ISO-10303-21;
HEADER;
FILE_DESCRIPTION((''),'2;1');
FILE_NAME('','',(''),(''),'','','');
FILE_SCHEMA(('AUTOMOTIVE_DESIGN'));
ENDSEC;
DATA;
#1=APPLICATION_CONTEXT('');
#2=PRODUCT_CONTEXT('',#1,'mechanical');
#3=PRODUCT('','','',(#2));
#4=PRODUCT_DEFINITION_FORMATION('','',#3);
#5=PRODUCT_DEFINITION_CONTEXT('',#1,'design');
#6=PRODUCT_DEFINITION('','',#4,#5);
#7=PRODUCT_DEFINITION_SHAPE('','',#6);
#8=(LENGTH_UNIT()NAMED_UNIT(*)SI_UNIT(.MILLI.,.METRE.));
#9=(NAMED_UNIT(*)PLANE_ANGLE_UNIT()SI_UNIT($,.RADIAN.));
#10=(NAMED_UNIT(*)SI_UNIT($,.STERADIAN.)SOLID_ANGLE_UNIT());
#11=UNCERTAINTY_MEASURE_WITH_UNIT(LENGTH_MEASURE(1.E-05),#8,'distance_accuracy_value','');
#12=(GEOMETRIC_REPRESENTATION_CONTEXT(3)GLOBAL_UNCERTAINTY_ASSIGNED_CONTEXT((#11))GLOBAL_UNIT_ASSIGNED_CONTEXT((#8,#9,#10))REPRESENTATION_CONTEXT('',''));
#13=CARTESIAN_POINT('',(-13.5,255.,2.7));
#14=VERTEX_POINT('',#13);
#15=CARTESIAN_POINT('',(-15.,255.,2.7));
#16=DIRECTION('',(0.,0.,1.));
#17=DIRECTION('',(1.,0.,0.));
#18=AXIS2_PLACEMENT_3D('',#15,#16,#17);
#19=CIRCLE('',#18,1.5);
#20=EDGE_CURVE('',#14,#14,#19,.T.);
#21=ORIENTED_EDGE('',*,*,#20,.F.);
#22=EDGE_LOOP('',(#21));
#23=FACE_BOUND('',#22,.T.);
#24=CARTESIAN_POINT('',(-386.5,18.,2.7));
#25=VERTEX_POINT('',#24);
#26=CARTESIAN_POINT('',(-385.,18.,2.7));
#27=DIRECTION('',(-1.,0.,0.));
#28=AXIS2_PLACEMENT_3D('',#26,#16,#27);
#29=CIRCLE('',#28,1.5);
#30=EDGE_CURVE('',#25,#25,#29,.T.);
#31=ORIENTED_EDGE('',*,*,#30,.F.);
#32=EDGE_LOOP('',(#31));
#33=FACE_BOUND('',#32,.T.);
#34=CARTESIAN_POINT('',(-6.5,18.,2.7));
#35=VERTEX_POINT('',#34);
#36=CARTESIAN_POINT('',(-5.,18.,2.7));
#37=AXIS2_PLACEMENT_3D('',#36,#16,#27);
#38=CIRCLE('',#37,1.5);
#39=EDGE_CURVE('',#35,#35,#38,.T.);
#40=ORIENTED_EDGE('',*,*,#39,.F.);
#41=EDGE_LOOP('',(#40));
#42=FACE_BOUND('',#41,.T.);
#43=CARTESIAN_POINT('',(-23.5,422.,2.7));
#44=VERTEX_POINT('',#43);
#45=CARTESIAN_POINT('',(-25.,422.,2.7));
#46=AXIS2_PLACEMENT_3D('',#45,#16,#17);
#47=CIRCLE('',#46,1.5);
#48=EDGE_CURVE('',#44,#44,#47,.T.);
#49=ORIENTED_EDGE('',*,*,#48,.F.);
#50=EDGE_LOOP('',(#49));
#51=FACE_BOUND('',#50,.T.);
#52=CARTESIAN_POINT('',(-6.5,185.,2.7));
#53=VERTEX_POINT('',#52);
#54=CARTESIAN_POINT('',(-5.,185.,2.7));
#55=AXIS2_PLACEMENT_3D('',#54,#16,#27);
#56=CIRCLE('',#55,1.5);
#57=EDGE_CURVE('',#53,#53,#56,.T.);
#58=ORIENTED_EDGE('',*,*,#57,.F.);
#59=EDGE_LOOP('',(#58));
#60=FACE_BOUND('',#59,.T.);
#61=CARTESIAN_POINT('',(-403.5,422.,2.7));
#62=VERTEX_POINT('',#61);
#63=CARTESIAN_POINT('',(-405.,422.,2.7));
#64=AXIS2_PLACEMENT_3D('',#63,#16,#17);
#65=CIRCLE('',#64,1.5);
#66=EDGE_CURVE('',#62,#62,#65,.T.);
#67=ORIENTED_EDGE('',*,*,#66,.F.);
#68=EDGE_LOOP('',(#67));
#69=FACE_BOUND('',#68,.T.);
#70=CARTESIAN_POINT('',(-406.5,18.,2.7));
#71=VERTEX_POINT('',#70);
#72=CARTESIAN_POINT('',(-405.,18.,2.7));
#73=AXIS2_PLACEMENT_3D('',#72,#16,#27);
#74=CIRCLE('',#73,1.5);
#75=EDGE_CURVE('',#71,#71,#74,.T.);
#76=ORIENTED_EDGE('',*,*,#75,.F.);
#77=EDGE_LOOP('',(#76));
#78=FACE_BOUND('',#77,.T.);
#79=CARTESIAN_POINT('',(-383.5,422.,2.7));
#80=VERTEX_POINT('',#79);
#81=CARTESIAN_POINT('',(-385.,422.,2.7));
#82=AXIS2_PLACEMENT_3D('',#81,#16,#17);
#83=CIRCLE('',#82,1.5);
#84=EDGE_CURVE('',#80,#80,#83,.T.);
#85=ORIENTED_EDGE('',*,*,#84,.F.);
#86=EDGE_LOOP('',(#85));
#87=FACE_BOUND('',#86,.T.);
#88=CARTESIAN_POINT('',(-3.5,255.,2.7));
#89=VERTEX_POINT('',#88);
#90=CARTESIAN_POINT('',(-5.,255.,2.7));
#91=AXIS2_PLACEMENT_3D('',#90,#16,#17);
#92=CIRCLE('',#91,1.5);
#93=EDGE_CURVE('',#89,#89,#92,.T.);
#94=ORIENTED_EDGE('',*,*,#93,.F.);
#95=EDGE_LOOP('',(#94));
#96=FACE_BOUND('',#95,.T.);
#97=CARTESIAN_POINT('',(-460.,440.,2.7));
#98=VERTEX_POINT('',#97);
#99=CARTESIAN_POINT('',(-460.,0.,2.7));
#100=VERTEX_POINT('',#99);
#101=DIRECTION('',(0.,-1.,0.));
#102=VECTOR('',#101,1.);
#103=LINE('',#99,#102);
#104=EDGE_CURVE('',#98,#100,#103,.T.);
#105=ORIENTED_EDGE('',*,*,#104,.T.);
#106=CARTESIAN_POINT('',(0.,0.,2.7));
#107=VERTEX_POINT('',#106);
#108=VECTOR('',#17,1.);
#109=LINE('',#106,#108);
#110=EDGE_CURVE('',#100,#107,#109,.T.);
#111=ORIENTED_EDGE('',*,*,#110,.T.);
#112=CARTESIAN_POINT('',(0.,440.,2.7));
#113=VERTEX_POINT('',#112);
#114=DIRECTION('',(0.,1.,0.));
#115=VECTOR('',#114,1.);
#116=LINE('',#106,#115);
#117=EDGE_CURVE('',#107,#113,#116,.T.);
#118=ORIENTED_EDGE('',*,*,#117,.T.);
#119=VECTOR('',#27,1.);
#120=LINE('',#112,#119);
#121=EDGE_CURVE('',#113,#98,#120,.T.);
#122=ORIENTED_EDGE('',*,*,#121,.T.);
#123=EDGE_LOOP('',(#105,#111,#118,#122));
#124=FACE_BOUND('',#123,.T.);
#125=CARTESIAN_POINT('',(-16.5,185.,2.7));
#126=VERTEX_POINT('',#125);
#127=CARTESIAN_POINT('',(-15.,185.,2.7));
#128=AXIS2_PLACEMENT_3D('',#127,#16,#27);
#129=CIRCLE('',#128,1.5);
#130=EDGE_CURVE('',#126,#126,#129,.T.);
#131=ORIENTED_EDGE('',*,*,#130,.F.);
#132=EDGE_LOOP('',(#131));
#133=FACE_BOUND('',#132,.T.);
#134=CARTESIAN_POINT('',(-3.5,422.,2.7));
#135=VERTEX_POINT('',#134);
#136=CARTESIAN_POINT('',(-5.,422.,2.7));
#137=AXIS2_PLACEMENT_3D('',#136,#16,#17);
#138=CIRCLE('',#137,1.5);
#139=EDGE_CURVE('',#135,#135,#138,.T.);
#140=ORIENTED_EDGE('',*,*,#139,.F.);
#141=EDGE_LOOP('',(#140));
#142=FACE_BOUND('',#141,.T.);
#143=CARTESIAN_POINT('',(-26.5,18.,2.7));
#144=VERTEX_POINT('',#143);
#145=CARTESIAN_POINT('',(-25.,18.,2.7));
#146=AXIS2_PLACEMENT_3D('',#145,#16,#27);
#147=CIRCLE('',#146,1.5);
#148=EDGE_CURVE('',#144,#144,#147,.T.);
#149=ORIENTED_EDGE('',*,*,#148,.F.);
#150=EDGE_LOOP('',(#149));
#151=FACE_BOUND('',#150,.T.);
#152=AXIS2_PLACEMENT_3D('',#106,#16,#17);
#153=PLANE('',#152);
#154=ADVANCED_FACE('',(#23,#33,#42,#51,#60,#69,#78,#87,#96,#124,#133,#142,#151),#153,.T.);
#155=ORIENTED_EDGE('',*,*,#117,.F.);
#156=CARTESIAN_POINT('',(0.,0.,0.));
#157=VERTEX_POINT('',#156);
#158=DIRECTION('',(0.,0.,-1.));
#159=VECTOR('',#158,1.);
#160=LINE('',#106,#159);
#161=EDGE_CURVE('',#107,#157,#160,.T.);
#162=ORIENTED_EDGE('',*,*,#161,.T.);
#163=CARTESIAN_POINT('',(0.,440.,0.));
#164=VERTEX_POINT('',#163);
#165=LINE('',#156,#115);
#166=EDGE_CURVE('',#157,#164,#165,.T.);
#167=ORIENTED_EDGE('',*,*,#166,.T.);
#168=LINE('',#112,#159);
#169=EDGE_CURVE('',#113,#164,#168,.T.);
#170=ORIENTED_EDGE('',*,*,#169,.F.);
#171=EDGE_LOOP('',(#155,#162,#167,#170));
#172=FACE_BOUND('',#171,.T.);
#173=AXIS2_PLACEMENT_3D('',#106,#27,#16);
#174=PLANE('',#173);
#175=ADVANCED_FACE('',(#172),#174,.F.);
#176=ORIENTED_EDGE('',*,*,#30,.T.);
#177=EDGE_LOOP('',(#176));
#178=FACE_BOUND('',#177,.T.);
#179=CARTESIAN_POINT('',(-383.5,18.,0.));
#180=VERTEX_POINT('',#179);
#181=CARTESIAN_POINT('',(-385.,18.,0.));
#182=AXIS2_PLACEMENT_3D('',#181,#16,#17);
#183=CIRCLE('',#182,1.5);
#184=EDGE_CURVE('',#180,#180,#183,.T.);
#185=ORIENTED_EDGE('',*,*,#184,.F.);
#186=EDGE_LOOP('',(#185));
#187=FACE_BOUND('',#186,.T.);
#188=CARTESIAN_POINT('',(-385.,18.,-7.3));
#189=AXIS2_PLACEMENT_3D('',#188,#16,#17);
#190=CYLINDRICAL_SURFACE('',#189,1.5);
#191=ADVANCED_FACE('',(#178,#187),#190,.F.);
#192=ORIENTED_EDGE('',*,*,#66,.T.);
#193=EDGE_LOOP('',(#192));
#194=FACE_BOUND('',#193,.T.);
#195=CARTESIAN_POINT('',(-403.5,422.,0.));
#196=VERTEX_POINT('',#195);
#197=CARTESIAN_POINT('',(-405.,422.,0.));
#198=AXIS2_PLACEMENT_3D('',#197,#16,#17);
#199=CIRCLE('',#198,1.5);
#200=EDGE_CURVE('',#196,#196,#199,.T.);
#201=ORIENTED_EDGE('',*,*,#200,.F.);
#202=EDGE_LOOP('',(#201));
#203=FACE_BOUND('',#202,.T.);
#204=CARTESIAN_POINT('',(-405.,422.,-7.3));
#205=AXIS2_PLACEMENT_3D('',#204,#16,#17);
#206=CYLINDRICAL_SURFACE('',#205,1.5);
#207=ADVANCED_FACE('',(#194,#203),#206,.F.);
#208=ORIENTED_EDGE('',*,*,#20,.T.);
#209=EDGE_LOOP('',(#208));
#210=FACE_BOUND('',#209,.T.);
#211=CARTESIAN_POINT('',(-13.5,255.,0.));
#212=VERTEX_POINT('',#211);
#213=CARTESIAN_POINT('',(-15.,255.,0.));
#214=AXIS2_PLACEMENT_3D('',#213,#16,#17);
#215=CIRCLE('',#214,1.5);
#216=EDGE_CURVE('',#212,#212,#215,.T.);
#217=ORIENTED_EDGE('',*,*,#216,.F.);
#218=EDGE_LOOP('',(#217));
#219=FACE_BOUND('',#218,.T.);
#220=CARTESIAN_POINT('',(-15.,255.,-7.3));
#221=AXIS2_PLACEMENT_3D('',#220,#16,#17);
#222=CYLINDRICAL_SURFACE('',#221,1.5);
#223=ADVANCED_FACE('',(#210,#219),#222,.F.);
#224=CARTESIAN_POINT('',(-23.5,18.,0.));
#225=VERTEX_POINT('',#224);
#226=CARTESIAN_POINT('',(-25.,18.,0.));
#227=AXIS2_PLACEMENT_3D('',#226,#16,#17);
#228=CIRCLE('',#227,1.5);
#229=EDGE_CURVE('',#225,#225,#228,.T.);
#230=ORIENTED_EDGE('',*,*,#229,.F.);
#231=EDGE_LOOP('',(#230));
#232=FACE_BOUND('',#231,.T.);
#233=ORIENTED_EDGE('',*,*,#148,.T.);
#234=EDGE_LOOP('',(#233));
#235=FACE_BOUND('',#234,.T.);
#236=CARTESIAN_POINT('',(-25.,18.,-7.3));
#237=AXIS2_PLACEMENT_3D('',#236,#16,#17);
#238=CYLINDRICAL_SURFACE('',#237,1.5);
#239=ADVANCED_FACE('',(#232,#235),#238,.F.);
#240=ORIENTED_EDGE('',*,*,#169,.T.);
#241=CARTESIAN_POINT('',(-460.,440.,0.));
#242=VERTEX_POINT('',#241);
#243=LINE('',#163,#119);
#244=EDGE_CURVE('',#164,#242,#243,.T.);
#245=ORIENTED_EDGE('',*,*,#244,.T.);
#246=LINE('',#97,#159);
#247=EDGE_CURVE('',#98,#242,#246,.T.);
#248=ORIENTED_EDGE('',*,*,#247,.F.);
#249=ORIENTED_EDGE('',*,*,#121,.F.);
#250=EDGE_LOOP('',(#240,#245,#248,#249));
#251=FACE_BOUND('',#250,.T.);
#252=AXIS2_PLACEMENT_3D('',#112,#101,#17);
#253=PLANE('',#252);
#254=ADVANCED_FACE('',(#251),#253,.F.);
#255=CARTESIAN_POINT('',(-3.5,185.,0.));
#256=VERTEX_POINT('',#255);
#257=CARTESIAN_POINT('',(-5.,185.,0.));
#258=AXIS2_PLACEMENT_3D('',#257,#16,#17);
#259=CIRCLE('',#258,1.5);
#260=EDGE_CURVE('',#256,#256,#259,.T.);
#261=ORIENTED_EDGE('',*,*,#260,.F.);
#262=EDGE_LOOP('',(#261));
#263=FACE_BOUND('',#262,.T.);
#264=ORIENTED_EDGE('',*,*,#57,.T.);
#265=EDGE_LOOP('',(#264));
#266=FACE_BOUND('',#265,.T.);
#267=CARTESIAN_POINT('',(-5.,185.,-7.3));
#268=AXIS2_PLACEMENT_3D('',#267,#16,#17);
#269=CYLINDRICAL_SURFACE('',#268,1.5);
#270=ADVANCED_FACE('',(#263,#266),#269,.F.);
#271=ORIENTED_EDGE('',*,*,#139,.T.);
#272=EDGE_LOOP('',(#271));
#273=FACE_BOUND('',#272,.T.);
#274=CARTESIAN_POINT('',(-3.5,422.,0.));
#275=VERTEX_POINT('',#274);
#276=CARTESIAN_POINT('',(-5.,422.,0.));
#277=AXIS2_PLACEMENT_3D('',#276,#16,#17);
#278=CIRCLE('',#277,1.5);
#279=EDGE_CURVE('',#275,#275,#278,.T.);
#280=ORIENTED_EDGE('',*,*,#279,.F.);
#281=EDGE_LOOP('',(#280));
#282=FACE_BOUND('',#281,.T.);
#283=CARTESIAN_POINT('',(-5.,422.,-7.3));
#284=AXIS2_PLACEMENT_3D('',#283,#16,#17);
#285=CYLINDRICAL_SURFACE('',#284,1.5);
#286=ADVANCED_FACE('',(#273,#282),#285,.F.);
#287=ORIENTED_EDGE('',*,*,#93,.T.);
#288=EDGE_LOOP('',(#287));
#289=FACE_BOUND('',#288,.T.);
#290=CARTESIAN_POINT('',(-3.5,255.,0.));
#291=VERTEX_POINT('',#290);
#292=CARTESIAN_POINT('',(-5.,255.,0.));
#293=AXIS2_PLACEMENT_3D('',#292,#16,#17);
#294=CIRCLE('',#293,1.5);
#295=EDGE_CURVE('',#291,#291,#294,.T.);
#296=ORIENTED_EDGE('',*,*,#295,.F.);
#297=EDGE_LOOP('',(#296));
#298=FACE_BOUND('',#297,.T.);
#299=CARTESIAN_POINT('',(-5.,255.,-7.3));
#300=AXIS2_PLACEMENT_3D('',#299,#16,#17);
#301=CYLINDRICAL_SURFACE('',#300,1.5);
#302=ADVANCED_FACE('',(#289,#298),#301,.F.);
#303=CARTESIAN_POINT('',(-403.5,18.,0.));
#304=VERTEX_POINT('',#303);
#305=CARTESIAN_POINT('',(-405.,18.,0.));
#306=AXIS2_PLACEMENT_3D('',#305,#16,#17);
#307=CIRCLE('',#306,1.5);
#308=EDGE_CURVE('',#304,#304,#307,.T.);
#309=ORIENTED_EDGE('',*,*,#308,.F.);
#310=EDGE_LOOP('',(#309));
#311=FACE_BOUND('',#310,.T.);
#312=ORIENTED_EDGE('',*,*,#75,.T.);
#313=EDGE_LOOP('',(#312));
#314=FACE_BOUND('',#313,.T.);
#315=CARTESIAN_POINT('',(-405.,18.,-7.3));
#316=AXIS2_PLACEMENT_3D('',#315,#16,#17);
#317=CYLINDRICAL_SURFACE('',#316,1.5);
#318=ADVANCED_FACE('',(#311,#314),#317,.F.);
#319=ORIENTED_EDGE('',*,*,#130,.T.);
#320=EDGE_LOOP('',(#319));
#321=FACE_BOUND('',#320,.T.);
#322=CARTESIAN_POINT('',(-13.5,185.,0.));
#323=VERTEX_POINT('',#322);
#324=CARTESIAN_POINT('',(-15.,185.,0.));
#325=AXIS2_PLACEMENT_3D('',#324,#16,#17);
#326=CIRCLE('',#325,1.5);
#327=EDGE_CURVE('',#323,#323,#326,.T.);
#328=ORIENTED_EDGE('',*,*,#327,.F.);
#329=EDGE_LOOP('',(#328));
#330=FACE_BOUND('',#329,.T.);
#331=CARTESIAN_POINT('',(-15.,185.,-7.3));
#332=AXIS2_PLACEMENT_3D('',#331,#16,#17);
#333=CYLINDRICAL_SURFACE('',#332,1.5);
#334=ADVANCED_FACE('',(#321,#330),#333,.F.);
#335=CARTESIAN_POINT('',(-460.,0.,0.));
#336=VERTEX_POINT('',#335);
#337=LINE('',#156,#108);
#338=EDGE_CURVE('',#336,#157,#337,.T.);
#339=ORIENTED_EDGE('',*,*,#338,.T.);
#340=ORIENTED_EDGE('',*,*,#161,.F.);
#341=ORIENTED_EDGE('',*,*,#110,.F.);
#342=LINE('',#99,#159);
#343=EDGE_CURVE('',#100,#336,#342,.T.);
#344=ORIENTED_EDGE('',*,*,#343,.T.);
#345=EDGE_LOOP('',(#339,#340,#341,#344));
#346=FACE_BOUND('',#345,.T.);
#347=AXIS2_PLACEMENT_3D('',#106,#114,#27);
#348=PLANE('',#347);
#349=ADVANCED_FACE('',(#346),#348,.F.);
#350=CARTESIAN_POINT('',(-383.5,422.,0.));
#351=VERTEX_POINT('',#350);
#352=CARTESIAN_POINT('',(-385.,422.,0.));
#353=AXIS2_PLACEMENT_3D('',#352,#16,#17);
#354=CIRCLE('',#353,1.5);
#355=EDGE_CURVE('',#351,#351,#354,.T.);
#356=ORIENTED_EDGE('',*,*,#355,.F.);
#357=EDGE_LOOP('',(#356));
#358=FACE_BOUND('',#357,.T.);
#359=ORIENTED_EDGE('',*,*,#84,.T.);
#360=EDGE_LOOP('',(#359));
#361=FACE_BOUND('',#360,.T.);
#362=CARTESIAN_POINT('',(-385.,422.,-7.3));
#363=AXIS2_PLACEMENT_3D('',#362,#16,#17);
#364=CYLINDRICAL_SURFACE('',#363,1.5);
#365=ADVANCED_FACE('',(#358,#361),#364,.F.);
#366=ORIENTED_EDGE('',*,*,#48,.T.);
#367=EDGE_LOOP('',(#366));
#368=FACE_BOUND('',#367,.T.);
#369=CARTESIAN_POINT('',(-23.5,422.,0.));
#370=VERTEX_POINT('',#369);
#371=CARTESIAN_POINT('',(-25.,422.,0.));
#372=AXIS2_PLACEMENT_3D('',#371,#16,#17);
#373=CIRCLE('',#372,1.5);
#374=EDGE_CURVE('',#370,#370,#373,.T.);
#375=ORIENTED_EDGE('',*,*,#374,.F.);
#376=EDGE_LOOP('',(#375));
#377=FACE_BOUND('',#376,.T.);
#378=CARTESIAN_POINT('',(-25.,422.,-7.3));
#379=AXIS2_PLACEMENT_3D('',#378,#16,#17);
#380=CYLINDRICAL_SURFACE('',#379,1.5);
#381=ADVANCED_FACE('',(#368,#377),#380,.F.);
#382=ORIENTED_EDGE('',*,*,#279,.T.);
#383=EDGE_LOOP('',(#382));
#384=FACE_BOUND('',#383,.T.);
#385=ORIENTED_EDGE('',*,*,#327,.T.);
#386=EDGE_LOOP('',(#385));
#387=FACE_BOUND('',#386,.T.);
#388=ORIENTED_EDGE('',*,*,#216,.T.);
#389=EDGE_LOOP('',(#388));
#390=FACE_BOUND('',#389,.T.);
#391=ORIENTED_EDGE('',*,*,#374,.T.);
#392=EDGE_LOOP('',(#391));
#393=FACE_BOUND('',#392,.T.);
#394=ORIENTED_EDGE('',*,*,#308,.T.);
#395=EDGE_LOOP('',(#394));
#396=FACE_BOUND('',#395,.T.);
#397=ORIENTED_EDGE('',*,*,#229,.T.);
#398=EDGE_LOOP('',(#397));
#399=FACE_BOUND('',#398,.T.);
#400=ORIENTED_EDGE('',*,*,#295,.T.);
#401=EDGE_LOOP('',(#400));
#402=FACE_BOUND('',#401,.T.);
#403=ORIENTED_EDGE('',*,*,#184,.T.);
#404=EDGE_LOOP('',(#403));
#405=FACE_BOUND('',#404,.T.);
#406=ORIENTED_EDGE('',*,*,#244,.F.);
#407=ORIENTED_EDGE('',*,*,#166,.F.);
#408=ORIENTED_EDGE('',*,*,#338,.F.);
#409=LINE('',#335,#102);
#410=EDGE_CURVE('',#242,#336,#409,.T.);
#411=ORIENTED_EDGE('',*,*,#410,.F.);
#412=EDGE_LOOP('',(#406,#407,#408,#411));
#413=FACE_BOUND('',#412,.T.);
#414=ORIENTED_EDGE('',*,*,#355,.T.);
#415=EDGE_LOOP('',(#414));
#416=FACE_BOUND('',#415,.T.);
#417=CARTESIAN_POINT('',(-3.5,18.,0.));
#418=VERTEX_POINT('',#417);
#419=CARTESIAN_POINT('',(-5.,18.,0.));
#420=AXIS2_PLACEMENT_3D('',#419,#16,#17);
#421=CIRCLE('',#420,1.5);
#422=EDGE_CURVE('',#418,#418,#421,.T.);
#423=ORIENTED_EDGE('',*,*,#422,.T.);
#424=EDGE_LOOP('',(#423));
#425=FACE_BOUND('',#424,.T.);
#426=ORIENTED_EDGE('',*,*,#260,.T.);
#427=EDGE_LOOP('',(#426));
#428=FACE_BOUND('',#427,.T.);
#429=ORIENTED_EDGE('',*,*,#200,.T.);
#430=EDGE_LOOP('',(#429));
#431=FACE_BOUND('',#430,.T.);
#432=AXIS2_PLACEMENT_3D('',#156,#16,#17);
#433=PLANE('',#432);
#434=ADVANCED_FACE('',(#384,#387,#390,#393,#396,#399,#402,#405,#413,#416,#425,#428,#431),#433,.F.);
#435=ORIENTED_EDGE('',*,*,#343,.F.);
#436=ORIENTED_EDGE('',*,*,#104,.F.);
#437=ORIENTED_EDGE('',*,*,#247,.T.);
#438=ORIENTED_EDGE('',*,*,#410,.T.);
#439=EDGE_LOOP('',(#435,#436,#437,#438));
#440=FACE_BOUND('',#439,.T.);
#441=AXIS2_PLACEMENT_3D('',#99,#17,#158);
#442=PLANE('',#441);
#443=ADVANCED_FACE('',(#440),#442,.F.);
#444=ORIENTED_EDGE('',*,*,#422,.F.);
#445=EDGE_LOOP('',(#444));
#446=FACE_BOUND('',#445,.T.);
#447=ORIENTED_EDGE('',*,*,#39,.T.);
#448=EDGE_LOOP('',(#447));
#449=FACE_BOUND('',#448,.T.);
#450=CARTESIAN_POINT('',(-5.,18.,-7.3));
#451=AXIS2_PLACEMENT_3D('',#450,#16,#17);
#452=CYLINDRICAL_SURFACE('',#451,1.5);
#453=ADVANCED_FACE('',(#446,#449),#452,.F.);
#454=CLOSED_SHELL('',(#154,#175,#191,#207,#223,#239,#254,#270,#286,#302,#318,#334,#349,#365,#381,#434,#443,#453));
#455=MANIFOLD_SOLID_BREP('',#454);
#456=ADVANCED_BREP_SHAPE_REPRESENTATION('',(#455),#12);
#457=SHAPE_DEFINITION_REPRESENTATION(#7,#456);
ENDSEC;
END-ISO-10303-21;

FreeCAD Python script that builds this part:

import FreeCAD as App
import Part
import Sketcher


def add_polygon(sketch, points):
    """Adds a closed chain of lines whose ends are joined by coincident constraints."""
    first, n = sketch.GeometryCount, len(points)
    for a, b in zip(points, points[1:] + points[:1]):
        sketch.addGeometry(Part.LineSegment(App.Vector(*a, 0), App.Vector(*b, 0)), False)
    for i in range(n):
        sketch.addConstraint(Sketcher.Constraint("Coincident", first + i, 2, first + (i + 1) % n, 1))

doc = App.newDocument("Part")
body = doc.addObject("PartDesign::Body", "Body")

# Sketch on XY plane
sketch1 = doc.addObject("Sketcher::SketchObject", "Sketch")
body.addObject(sketch1)
sketch1.AttachmentSupport = (doc.XY_Plane, [""])
sketch1.MapMode = "FlatFace"
add_polygon(sketch1, [(-460, 440), (-460, 0), (0, 0), (0, 440)])  # lines 0-3
sketch1.addConstraint([
    Sketcher.Constraint("Vertical", 0),
    Sketcher.Constraint("Horizontal", 1),
    Sketcher.Constraint("Vertical", 2),
    Sketcher.Constraint("Horizontal", 3),
    Sketcher.Constraint("Coincident", 1, 2, -1, 1),
    Sketcher.Constraint("DistanceX", 1, 1, 1, 2, 460.0),
    Sketcher.Constraint("DistanceY", 0, 2, 0, 1, 440.0),
])
pad1 = doc.addObject("PartDesign::Pad", "Pad")
body.addObject(pad1)
pad1.Profile = sketch1
pad1.Length = 2.7

# Sketch on XY plane
sketch2 = doc.addObject("Sketcher::SketchObject", "Sketch001")
body.addObject(sketch2)
sketch2.AttachmentSupport = (doc.XY_Plane, [""])
sketch2.MapMode = "FlatFace"
sketch2.AttachmentOffset = App.Placement(App.Vector(0, 0, 2.7), App.Rotation())
sketch2.addGeometry([
    Part.Circle(App.Vector(-5, 422, 0), App.Vector(0, 0, 1), 1.5),  # 0
    Part.Circle(App.Vector(-25, 422, 0), App.Vector(0, 0, 1), 1.5),  # 1
    Part.Circle(App.Vector(-25, 18, 0), App.Vector(0, 0, 1), 1.5),  # 2
    Part.Circle(App.Vector(-5, 18, 0), App.Vector(0, 0, 1), 1.5),  # 3
    Part.Circle(App.Vector(-385, 422, 0), App.Vector(0, 0, 1), 1.5),  # 4
    Part.Circle(App.Vector(-405, 422, 0), App.Vector(0, 0, 1), 1.5),  # 5
    Part.Circle(App.Vector(-405, 18, 0), App.Vector(0, 0, 1), 1.5),  # 6
    Part.Circle(App.Vector(-385, 18, 0), App.Vector(0, 0, 1), 1.5),  # 7
], False)
sketch2.addConstraint([
    Sketcher.Constraint("Equal", 0, 1),
    Sketcher.Constraint("Equal", 1, 2),
    Sketcher.Constraint("Equal", 2, 3),
    Sketcher.Constraint("Equal", 3, 4),
    Sketcher.Constraint("Equal", 4, 5),
    Sketcher.Constraint("Equal", 5, 6),
    Sketcher.Constraint("Equal", 6, 7),
    Sketcher.Constraint("Horizontal", 0, 3, 1, 3),
    Sketcher.Constraint("Horizontal", 2, 3, 3, 3),
    Sketcher.Constraint("Horizontal", 1, 3, 4, 3),
    Sketcher.Constraint("Horizontal", 4, 3, 5, 3),
    Sketcher.Constraint("Horizontal", 3, 3, 6, 3),
    Sketcher.Constraint("Horizontal", 6, 3, 7, 3),
    Sketcher.Constraint("Vertical", 1, 3, 2, 3),
    Sketcher.Constraint("Vertical", 0, 3, 3, 3),
    Sketcher.Constraint("Vertical", 5, 3, 6, 3),
    Sketcher.Constraint("Vertical", 4, 3, 7, 3),
    Sketcher.Constraint("Diameter", 0, 3.0),
    Sketcher.Constraint("DistanceX", 0, 3, -1, 1, 5.0),
    Sketcher.Constraint("DistanceY", -1, 1, 0, 3, 422.0),
    Sketcher.Constraint("DistanceX", 1, 3, -1, 1, 25.0),
    Sketcher.Constraint("DistanceY", -1, 1, 2, 3, 18.0),
    Sketcher.Constraint("DistanceX", 4, 3, -1, 1, 385.0),
    Sketcher.Constraint("DistanceX", 5, 3, -1, 1, 405.0),
])
pocket1 = doc.addObject("PartDesign::Pocket", "Pocket")
body.addObject(pocket1)
pocket1.Profile = sketch2
pocket1.Length = 10

# Sketch on XY plane
sketch3 = doc.addObject("Sketcher::SketchObject", "Sketch002")
body.addObject(sketch3)
sketch3.AttachmentSupport = (doc.XY_Plane, [""])
sketch3.MapMode = "FlatFace"
sketch3.AttachmentOffset = App.Placement(App.Vector(0, 0, 2.7), App.Rotation())
sketch3.addGeometry([
    Part.Circle(App.Vector(-15, 255, 0), App.Vector(0, 0, 1), 1.5),
    Part.Circle(App.Vector(-5, 255, 0), App.Vector(0, 0, 1), 1.5),
    Part.Circle(App.Vector(-5, 185, 0), App.Vector(0, 0, 1), 1.5),
    Part.Circle(App.Vector(-15, 185, 0), App.Vector(0, 0, 1), 1.5),
], False)
sketch3.addConstraint([
    Sketcher.Constraint("Equal", 0, 1),
    Sketcher.Constraint("Equal", 1, 2),
    Sketcher.Constraint("Equal", 2, 3),
    Sketcher.Constraint("Horizontal", 0, 3, 1, 3),
    Sketcher.Constraint("Horizontal", 2, 3, 3, 3),
    Sketcher.Constraint("Vertical", 1, 3, 2, 3),
    Sketcher.Constraint("Vertical", 0, 3, 3, 3),
    Sketcher.Constraint("Diameter", 0, 3.0),
    Sketcher.Constraint("DistanceX", 0, 3, -1, 1, 15.0),
    Sketcher.Constraint("DistanceY", -1, 1, 0, 3, 255.0),
    Sketcher.Constraint("DistanceX", 1, 3, -1, 1, 5.0),
    Sketcher.Constraint("DistanceY", -1, 1, 2, 3, 185.0),
])
pocket2 = doc.addObject("PartDesign::Pocket", "Pocket001")
body.addObject(pocket2)
pocket2.Profile = sketch3
pocket2.Length = 10

doc.recompute()
